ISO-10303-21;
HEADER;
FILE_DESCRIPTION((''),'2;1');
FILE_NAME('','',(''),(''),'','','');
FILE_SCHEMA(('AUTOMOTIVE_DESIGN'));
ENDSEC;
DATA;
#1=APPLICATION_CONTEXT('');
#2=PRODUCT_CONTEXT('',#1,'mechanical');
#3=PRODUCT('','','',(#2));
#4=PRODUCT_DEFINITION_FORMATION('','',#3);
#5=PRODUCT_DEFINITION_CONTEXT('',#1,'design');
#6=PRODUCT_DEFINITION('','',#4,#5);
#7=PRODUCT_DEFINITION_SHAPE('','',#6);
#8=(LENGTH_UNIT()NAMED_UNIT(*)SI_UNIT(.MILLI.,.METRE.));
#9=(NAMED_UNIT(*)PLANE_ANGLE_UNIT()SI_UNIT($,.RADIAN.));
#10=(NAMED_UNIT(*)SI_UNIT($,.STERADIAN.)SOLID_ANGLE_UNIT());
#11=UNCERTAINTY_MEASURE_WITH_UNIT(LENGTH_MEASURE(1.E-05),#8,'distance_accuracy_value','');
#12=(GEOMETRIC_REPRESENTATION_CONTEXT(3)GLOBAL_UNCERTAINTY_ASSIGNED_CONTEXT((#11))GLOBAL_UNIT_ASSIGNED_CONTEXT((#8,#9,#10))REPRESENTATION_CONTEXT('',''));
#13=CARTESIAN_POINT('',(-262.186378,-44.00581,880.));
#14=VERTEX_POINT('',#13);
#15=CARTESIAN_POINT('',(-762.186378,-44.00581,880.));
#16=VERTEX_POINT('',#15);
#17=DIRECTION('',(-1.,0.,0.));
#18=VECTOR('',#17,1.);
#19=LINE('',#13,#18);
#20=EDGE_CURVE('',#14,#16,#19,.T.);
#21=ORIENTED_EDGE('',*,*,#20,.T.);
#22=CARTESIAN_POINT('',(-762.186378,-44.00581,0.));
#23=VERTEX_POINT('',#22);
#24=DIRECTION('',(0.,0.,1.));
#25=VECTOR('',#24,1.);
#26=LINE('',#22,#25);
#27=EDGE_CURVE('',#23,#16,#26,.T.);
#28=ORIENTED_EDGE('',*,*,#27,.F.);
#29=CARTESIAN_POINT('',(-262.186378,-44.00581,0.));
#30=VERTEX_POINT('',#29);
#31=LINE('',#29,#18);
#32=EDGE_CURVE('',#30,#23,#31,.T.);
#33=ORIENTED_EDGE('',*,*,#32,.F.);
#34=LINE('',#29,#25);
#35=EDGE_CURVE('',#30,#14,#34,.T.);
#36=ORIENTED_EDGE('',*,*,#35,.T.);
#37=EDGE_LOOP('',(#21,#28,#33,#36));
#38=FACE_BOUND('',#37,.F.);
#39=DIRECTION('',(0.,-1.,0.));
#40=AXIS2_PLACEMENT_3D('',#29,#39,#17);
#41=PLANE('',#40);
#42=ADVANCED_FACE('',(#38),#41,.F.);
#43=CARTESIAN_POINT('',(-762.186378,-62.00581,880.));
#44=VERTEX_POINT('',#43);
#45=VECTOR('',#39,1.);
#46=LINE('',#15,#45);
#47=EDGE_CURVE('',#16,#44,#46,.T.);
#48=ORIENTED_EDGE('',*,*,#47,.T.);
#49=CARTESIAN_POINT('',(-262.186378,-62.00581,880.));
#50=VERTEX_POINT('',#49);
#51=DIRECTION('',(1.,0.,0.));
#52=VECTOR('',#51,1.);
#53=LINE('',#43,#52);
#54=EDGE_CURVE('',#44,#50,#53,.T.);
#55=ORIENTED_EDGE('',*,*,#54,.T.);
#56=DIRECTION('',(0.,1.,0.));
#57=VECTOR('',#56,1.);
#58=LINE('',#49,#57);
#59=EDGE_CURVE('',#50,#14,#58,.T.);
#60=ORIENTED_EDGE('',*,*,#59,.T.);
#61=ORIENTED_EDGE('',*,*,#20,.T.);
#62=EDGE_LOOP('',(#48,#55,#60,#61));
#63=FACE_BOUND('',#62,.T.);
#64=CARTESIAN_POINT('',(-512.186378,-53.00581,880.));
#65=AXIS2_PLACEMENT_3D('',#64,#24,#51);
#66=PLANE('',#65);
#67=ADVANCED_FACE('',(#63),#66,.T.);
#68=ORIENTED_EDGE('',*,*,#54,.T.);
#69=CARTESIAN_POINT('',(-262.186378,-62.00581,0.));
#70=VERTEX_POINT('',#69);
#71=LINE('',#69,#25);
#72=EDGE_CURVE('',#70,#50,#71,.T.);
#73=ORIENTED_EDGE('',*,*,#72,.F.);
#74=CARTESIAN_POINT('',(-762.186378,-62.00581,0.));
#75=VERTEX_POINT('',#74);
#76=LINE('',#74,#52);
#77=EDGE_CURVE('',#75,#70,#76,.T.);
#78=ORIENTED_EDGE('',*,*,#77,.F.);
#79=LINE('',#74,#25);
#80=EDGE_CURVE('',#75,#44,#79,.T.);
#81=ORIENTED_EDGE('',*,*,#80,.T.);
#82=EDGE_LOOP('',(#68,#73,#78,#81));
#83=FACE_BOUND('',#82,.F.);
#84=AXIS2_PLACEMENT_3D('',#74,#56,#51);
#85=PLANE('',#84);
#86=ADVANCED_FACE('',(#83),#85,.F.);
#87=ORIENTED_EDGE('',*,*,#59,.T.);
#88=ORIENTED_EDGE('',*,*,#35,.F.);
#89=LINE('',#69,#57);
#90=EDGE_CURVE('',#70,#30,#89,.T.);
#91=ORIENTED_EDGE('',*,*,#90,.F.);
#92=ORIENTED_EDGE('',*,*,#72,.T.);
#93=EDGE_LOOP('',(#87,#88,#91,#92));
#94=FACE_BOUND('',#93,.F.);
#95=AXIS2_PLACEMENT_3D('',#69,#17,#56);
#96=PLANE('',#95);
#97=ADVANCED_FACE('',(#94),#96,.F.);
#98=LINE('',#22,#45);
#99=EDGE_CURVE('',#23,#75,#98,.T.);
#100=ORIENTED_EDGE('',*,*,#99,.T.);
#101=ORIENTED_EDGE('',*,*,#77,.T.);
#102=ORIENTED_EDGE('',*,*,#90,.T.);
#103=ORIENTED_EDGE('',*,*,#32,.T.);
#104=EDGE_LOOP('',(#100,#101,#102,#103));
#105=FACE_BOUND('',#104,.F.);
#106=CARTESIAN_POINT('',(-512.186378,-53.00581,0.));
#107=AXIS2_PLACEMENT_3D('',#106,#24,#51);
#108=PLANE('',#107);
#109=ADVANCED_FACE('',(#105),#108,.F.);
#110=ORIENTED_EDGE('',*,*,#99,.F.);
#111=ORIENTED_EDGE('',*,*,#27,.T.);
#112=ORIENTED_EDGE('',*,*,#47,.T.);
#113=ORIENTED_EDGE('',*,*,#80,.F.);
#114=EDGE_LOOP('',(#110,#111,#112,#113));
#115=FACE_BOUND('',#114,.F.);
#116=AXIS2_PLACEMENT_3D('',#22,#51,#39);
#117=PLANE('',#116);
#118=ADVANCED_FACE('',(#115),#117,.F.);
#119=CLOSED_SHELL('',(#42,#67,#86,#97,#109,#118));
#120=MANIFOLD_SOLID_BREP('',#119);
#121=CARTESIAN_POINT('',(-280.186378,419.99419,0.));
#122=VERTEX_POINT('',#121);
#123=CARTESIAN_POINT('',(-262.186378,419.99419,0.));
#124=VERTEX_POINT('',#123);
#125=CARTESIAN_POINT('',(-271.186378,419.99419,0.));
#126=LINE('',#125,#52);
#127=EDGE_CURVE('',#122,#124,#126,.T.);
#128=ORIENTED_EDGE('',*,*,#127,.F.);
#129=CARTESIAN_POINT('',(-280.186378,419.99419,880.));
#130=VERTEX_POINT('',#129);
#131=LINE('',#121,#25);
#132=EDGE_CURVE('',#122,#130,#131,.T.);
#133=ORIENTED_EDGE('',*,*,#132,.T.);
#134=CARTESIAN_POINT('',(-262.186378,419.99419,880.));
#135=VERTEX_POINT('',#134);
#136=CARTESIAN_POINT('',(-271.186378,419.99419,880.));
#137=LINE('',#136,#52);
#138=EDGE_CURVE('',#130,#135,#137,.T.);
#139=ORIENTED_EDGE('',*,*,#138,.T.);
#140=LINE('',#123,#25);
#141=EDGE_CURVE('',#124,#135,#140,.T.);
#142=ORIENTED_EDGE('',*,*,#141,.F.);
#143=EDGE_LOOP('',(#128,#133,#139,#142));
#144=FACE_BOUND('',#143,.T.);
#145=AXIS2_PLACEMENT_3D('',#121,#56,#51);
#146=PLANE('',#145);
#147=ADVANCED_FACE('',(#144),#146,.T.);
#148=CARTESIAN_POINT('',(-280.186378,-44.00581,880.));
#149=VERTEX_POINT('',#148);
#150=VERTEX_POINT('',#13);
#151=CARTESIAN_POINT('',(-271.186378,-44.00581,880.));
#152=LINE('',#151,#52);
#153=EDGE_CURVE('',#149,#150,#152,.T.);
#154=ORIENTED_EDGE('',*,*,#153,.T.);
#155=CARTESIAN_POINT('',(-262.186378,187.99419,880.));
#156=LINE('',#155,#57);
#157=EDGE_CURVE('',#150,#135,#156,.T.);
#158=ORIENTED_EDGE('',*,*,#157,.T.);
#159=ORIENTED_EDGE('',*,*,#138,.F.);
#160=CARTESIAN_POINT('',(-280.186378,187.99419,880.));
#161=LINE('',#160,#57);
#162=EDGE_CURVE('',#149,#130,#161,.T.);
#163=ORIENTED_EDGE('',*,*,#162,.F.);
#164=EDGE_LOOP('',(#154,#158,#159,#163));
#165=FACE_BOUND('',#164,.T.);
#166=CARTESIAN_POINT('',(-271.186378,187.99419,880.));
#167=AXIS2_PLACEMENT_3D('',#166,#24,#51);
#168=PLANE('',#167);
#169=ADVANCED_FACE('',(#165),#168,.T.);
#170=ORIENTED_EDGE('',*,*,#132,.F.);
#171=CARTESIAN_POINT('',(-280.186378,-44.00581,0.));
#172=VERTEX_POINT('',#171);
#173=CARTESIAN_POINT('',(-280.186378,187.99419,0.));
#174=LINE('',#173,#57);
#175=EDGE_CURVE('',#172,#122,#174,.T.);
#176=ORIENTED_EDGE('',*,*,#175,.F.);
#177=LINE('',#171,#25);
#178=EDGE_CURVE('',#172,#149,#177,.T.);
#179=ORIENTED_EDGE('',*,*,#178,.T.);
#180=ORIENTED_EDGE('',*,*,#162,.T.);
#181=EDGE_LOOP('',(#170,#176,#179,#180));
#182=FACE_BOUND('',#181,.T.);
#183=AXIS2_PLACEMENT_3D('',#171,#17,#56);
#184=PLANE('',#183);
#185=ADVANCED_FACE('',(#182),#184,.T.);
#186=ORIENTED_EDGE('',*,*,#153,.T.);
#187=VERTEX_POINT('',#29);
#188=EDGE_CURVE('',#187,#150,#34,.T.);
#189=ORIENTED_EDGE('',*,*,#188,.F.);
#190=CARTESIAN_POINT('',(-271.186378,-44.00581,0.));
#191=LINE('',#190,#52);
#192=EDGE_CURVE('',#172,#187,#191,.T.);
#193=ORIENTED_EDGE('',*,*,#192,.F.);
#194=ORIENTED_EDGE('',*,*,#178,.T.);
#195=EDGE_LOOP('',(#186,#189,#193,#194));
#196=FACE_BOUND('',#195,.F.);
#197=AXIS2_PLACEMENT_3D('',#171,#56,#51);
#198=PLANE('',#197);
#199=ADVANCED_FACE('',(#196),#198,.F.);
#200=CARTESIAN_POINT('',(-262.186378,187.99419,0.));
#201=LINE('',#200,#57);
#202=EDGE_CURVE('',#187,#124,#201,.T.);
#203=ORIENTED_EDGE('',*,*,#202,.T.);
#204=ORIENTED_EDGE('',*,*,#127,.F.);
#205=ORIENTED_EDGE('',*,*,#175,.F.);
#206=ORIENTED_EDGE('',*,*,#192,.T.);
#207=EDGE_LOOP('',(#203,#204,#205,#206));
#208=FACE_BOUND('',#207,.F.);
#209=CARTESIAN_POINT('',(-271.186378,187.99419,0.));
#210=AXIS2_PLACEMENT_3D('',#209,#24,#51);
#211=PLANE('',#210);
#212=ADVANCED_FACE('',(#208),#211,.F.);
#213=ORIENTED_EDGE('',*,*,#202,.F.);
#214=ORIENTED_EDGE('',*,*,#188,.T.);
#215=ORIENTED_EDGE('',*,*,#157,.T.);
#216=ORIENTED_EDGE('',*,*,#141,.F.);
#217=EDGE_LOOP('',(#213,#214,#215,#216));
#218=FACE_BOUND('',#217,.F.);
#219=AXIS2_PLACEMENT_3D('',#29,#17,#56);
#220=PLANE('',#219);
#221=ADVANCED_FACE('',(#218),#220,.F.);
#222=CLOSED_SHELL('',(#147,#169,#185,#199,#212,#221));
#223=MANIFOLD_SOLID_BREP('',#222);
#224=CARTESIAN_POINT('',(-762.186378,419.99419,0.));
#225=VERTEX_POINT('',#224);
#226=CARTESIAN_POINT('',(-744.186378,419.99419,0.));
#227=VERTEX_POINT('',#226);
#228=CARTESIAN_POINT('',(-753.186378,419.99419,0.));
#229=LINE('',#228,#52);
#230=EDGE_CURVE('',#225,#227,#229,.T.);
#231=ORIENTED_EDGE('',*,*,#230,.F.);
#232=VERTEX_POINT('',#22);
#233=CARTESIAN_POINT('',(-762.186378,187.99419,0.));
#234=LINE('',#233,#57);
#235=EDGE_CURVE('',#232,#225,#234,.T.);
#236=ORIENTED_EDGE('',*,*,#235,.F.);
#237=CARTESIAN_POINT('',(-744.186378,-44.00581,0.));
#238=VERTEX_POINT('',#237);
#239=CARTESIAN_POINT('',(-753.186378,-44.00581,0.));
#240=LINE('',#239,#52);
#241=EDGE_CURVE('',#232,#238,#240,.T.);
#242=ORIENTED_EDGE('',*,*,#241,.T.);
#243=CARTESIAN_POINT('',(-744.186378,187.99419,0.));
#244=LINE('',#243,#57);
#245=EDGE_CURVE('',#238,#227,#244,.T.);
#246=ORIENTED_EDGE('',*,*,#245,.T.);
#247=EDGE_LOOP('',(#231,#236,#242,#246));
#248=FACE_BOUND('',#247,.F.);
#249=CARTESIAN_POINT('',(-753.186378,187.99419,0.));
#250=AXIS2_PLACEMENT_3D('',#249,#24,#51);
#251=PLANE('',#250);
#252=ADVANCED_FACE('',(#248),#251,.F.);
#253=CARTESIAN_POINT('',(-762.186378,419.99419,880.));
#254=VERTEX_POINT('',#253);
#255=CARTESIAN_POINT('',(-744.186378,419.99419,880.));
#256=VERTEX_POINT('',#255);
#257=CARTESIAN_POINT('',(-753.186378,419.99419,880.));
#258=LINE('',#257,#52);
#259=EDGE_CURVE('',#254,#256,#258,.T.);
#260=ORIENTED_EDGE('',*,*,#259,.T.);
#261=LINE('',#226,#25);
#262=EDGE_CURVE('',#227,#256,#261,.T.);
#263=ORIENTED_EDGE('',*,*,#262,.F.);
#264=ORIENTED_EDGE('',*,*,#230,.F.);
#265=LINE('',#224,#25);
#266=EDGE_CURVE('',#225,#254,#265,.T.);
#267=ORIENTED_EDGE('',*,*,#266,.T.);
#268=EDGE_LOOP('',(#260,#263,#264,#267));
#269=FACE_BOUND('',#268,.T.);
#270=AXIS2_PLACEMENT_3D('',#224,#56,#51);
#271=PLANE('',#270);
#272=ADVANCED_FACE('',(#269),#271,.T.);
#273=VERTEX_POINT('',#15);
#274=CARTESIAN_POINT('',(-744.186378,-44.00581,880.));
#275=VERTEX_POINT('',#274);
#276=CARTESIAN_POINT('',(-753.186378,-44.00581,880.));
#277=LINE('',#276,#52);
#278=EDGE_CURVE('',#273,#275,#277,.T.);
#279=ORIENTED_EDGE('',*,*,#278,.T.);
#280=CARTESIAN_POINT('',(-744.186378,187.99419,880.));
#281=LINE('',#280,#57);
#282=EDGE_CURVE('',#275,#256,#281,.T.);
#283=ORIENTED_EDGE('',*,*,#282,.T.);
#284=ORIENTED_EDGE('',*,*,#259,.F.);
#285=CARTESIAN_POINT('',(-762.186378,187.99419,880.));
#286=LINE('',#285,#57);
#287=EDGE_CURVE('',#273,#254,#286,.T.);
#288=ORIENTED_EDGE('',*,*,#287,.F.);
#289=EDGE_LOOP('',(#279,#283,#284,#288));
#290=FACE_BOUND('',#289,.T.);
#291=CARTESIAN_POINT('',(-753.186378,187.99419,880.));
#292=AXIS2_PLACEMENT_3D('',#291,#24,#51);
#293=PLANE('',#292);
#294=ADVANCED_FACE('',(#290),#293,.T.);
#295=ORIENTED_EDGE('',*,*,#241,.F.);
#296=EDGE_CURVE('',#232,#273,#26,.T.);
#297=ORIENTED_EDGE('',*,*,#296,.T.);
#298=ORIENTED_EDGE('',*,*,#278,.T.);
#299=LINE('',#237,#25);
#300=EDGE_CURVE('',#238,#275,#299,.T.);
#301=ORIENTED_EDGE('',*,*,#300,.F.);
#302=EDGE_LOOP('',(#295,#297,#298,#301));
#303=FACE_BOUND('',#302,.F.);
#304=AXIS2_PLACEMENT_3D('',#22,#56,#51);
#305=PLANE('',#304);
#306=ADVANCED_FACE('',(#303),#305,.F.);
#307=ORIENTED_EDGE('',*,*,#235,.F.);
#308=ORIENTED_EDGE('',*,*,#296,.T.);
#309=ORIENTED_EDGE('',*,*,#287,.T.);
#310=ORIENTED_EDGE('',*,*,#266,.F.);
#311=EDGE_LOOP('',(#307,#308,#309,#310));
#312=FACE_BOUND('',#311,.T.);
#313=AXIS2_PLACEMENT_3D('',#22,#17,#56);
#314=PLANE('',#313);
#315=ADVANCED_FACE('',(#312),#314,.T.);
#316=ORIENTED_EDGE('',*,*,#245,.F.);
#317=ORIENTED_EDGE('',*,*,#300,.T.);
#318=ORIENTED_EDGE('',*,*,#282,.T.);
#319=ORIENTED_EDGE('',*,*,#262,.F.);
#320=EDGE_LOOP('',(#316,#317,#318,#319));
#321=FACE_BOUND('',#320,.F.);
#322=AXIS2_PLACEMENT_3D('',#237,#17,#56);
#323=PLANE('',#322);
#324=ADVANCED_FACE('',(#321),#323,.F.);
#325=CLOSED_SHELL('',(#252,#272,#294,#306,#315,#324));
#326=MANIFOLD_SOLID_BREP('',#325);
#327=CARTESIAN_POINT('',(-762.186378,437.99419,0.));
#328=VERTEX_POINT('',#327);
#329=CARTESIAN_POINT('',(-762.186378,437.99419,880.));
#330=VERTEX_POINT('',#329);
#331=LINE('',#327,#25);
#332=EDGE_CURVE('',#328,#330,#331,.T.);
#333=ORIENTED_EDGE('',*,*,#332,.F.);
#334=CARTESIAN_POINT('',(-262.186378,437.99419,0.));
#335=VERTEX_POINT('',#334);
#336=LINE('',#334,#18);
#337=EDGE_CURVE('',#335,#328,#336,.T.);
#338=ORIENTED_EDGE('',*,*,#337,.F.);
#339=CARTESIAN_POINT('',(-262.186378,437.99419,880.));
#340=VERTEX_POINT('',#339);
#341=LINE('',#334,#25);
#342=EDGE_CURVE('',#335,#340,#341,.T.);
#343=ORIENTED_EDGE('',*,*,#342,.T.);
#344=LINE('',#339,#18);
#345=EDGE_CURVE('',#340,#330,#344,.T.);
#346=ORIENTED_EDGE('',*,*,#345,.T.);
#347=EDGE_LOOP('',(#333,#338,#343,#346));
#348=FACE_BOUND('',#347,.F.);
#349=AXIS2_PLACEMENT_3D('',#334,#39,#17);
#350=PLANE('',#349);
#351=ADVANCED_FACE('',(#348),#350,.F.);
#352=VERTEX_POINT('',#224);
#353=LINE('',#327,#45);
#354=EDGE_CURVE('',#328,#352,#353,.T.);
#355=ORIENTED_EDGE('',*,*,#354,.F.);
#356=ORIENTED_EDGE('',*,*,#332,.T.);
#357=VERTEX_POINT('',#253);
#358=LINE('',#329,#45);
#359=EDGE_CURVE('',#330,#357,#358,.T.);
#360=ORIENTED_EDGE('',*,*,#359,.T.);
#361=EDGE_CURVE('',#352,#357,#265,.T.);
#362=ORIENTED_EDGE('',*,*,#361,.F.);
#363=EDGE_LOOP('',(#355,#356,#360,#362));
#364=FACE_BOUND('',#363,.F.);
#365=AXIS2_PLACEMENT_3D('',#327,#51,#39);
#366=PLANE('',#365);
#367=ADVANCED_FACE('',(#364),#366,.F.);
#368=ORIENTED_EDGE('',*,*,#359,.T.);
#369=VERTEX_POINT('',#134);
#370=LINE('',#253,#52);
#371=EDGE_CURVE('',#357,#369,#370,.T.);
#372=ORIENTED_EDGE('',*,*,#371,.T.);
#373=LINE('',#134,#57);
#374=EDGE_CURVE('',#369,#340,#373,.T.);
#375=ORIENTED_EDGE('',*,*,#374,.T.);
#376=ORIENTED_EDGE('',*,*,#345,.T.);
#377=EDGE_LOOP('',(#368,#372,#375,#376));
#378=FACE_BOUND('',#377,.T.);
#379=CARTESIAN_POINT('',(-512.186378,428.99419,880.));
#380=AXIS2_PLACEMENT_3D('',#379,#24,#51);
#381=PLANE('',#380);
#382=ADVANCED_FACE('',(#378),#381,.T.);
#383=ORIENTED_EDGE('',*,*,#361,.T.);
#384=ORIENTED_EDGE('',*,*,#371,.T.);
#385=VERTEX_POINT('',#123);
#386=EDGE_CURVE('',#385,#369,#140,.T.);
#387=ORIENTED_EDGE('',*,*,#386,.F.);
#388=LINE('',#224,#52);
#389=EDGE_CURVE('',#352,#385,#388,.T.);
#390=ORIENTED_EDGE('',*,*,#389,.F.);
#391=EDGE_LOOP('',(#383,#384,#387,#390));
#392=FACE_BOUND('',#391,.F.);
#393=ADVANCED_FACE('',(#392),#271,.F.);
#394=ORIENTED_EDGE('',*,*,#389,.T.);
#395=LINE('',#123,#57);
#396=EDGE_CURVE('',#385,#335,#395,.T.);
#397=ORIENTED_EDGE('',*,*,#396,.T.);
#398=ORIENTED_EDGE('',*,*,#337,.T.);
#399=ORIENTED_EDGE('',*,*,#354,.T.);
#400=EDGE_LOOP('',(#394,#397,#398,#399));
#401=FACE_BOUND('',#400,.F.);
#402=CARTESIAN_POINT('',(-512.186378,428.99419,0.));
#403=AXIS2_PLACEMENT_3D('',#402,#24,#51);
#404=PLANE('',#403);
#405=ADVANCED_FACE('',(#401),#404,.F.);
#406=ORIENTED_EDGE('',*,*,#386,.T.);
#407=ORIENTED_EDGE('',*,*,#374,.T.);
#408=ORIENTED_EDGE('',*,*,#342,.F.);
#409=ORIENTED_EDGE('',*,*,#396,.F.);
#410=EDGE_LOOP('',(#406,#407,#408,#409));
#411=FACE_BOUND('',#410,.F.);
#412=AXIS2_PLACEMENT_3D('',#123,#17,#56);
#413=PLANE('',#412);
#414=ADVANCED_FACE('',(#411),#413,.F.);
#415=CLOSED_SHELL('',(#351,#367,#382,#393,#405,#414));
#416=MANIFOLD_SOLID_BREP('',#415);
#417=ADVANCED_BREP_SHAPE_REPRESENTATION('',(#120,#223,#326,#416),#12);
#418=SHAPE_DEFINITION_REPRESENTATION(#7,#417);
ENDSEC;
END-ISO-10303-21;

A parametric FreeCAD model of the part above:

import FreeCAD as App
import Part
import Sketcher
from FreeCAD import Vector

doc = App.newDocument("Part")
body = doc.addObject("PartDesign::Body", "Body")
body.AllowCompound = True

sketch1 = doc.addObject("Sketcher::SketchObject", "Sketch")
body.addObject(sketch1)
sketch1.AttachmentSupport = (doc.XY_Plane, [""])
sketch1.MapMode = "FlatFace"
sketch1.addGeometry(Part.LineSegment(Vector(-262, 438, 0), Vector(-762, 438, 0)), False)
sketch1.addGeometry(Part.LineSegment(Vector(-762, 438, 0), Vector(-762, 420, 0)), False)
sketch1.addGeometry(Part.LineSegment(Vector(-762, 420, 0), Vector(-262, 420, 0)), False)
sketch1.addGeometry(Part.LineSegment(Vector(-262, 420, 0), Vector(-262, 438, 0)), False)
sketch1.addGeometry(Part.LineSegment(Vector(-762, -44, 0), Vector(-762, -62, 0)), False)
sketch1.addGeometry(Part.LineSegment(Vector(-762, -62, 0), Vector(-262, -62, 0)), False)
sketch1.addGeometry(Part.LineSegment(Vector(-262, -62, 0), Vector(-262, -44, 0)), False)
sketch1.addGeometry(Part.LineSegment(Vector(-262, -44, 0), Vector(-762, -44, 0)), False)
sketch1.addConstraint(Sketcher.Constraint("Coincident", 0, 2, 1, 1))
sketch1.addConstraint(Sketcher.Constraint("Coincident", 1, 2, 2, 1))
sketch1.addConstraint(Sketcher.Constraint("Coincident", 2, 2, 3, 1))
sketch1.addConstraint(Sketcher.Constraint("Coincident", 3, 2, 0, 1))
sketch1.addConstraint(Sketcher.Constraint("Coincident", 4, 2, 5, 1))
sketch1.addConstraint(Sketcher.Constraint("Coincident", 5, 2, 6, 1))
sketch1.addConstraint(Sketcher.Constraint("Coincident", 6, 2, 7, 1))
sketch1.addConstraint(Sketcher.Constraint("Coincident", 7, 2, 4, 1))
sketch1.addConstraint(Sketcher.Constraint("Horizontal", 0))
sketch1.addConstraint(Sketcher.Constraint("Vertical", 1))
sketch1.addConstraint(Sketcher.Constraint("Horizontal", 2))
sketch1.addConstraint(Sketcher.Constraint("Vertical", 3))
sketch1.addConstraint(Sketcher.Constraint("Vertical", 4))
sketch1.addConstraint(Sketcher.Constraint("Horizontal", 5))
sketch1.addConstraint(Sketcher.Constraint("Vertical", 6))
sketch1.addConstraint(Sketcher.Constraint("Horizontal", 7))
sketch1.addConstraint(Sketcher.Constraint("Vertical", 1, 2, 4, 2))
sketch1.addConstraint(Sketcher.Constraint("Vertical", 3, 2, 5, 2))
sketch1.addConstraint(Sketcher.Constraint("Equal", 3, 4))
sketch1.addConstraint(Sketcher.Constraint("DistanceX", 0, 2, 0, 1, 500.0))
sketch1.addConstraint(Sketcher.Constraint("DistanceY", 1, 2, 1, 1, 18.0))
sketch1.addConstraint(Sketcher.Constraint("DistanceY", 4, 2, 1, 2, 482.0))
sketch1.addConstraint(Sketcher.Constraint("DistanceX", 0, 2, -1, 1, 762.186378))
sketch1.addConstraint(Sketcher.Constraint("DistanceY", -1, 1, 0, 2, 437.99419))
pad1 = doc.addObject("PartDesign::Pad", "Pad")
body.addObject(pad1)
pad1.Profile = sketch1
pad1.Length = 880
body2 = doc.addObject("PartDesign::Body", "Body001")
body2.AllowCompound = True

sketch2 = doc.addObject("Sketcher::SketchObject", "Sketch001")
body2.addObject(sketch2)
sketch2.AttachmentSupport = (doc.getObject("XY_Plane001"), [""])
sketch2.MapMode = "FlatFace"
sketch2.addGeometry(Part.LineSegment(Vector(-762, 420, 0), Vector(-762, -44, 0)), False)
sketch2.addGeometry(Part.LineSegment(Vector(-762, -44, 0), Vector(-744, -44, 0)), False)
sketch2.addGeometry(Part.LineSegment(Vector(-744, -44, 0), Vector(-744, 420, 0)), False)
sketch2.addGeometry(Part.LineSegment(Vector(-744, 420, 0), Vector(-762, 420, 0)), False)
sketch2.addGeometry(Part.LineSegment(Vector(-280, 420, 0), Vector(-280, -44, 0)), False)
sketch2.addGeometry(Part.LineSegment(Vector(-280, -44, 0), Vector(-262, -44, 0)), False)
sketch2.addGeometry(Part.LineSegment(Vector(-262, -44, 0), Vector(-262, 420, 0)), False)
sketch2.addGeometry(Part.LineSegment(Vector(-262, 420, 0), Vector(-280, 420, 0)), False)
sketch2.addConstraint(Sketcher.Constraint("Coincident", 0, 2, 1, 1))
sketch2.addConstraint(Sketcher.Constraint("Coincident", 1, 2, 2, 1))
sketch2.addConstraint(Sketcher.Constraint("Coincident", 2, 2, 3, 1))
sketch2.addConstraint(Sketcher.Constraint("Coincident", 3, 2, 0, 1))
sketch2.addConstraint(Sketcher.Constraint("Coincident", 4, 2, 5, 1))
sketch2.addConstraint(Sketcher.Constraint("Coincident", 5, 2, 6, 1))
sketch2.addConstraint(Sketcher.Constraint("Coincident", 6, 2, 7, 1))
sketch2.addConstraint(Sketcher.Constraint("Coincident", 7, 2, 4, 1))
sketch2.addConstraint(Sketcher.Constraint("Vertical", 0))
sketch2.addConstraint(Sketcher.Constraint("Horizontal", 1))
sketch2.addConstraint(Sketcher.Constraint("Vertical", 2))
sketch2.addConstraint(Sketcher.Constraint("Horizontal", 3))
sketch2.addConstraint(Sketcher.Constraint("Vertical", 4))
sketch2.addConstraint(Sketcher.Constraint("Horizontal", 5))
sketch2.addConstraint(Sketcher.Constraint("Vertical", 6))
sketch2.addConstraint(Sketcher.Constraint("Horizontal", 7))
sketch2.addConstraint(Sketcher.Constraint("Horizontal", 1, 2, 4, 2))
sketch2.addConstraint(Sketcher.Constraint("Horizontal", 3, 2, 6, 2))
sketch2.addConstraint(Sketcher.Constraint("Equal", 3, 5))
sketch2.addConstraint(Sketcher.Constraint("DistanceX", 1, 1, 1, 2, 18.0))
sketch2.addConstraint(Sketcher.Constraint("DistanceY", 0, 2, 0, 1, 464.0))
sketch2.addConstraint(Sketcher.Constraint("DistanceX", 1, 2, 4, 2, 464.0))
sketch2.addConstraint(Sketcher.Constraint("DistanceX", 0, 2, -1, 1, 762.186378))
sketch2.addConstraint(Sketcher.Constraint("DistanceY", 0, 2, -1, 1, 44.00581))
pad2 = doc.addObject("PartDesign::Pad", "Pad001")
body2.addObject(pad2)
pad2.Profile = sketch2
pad2.Length = 880

doc.recompute()
